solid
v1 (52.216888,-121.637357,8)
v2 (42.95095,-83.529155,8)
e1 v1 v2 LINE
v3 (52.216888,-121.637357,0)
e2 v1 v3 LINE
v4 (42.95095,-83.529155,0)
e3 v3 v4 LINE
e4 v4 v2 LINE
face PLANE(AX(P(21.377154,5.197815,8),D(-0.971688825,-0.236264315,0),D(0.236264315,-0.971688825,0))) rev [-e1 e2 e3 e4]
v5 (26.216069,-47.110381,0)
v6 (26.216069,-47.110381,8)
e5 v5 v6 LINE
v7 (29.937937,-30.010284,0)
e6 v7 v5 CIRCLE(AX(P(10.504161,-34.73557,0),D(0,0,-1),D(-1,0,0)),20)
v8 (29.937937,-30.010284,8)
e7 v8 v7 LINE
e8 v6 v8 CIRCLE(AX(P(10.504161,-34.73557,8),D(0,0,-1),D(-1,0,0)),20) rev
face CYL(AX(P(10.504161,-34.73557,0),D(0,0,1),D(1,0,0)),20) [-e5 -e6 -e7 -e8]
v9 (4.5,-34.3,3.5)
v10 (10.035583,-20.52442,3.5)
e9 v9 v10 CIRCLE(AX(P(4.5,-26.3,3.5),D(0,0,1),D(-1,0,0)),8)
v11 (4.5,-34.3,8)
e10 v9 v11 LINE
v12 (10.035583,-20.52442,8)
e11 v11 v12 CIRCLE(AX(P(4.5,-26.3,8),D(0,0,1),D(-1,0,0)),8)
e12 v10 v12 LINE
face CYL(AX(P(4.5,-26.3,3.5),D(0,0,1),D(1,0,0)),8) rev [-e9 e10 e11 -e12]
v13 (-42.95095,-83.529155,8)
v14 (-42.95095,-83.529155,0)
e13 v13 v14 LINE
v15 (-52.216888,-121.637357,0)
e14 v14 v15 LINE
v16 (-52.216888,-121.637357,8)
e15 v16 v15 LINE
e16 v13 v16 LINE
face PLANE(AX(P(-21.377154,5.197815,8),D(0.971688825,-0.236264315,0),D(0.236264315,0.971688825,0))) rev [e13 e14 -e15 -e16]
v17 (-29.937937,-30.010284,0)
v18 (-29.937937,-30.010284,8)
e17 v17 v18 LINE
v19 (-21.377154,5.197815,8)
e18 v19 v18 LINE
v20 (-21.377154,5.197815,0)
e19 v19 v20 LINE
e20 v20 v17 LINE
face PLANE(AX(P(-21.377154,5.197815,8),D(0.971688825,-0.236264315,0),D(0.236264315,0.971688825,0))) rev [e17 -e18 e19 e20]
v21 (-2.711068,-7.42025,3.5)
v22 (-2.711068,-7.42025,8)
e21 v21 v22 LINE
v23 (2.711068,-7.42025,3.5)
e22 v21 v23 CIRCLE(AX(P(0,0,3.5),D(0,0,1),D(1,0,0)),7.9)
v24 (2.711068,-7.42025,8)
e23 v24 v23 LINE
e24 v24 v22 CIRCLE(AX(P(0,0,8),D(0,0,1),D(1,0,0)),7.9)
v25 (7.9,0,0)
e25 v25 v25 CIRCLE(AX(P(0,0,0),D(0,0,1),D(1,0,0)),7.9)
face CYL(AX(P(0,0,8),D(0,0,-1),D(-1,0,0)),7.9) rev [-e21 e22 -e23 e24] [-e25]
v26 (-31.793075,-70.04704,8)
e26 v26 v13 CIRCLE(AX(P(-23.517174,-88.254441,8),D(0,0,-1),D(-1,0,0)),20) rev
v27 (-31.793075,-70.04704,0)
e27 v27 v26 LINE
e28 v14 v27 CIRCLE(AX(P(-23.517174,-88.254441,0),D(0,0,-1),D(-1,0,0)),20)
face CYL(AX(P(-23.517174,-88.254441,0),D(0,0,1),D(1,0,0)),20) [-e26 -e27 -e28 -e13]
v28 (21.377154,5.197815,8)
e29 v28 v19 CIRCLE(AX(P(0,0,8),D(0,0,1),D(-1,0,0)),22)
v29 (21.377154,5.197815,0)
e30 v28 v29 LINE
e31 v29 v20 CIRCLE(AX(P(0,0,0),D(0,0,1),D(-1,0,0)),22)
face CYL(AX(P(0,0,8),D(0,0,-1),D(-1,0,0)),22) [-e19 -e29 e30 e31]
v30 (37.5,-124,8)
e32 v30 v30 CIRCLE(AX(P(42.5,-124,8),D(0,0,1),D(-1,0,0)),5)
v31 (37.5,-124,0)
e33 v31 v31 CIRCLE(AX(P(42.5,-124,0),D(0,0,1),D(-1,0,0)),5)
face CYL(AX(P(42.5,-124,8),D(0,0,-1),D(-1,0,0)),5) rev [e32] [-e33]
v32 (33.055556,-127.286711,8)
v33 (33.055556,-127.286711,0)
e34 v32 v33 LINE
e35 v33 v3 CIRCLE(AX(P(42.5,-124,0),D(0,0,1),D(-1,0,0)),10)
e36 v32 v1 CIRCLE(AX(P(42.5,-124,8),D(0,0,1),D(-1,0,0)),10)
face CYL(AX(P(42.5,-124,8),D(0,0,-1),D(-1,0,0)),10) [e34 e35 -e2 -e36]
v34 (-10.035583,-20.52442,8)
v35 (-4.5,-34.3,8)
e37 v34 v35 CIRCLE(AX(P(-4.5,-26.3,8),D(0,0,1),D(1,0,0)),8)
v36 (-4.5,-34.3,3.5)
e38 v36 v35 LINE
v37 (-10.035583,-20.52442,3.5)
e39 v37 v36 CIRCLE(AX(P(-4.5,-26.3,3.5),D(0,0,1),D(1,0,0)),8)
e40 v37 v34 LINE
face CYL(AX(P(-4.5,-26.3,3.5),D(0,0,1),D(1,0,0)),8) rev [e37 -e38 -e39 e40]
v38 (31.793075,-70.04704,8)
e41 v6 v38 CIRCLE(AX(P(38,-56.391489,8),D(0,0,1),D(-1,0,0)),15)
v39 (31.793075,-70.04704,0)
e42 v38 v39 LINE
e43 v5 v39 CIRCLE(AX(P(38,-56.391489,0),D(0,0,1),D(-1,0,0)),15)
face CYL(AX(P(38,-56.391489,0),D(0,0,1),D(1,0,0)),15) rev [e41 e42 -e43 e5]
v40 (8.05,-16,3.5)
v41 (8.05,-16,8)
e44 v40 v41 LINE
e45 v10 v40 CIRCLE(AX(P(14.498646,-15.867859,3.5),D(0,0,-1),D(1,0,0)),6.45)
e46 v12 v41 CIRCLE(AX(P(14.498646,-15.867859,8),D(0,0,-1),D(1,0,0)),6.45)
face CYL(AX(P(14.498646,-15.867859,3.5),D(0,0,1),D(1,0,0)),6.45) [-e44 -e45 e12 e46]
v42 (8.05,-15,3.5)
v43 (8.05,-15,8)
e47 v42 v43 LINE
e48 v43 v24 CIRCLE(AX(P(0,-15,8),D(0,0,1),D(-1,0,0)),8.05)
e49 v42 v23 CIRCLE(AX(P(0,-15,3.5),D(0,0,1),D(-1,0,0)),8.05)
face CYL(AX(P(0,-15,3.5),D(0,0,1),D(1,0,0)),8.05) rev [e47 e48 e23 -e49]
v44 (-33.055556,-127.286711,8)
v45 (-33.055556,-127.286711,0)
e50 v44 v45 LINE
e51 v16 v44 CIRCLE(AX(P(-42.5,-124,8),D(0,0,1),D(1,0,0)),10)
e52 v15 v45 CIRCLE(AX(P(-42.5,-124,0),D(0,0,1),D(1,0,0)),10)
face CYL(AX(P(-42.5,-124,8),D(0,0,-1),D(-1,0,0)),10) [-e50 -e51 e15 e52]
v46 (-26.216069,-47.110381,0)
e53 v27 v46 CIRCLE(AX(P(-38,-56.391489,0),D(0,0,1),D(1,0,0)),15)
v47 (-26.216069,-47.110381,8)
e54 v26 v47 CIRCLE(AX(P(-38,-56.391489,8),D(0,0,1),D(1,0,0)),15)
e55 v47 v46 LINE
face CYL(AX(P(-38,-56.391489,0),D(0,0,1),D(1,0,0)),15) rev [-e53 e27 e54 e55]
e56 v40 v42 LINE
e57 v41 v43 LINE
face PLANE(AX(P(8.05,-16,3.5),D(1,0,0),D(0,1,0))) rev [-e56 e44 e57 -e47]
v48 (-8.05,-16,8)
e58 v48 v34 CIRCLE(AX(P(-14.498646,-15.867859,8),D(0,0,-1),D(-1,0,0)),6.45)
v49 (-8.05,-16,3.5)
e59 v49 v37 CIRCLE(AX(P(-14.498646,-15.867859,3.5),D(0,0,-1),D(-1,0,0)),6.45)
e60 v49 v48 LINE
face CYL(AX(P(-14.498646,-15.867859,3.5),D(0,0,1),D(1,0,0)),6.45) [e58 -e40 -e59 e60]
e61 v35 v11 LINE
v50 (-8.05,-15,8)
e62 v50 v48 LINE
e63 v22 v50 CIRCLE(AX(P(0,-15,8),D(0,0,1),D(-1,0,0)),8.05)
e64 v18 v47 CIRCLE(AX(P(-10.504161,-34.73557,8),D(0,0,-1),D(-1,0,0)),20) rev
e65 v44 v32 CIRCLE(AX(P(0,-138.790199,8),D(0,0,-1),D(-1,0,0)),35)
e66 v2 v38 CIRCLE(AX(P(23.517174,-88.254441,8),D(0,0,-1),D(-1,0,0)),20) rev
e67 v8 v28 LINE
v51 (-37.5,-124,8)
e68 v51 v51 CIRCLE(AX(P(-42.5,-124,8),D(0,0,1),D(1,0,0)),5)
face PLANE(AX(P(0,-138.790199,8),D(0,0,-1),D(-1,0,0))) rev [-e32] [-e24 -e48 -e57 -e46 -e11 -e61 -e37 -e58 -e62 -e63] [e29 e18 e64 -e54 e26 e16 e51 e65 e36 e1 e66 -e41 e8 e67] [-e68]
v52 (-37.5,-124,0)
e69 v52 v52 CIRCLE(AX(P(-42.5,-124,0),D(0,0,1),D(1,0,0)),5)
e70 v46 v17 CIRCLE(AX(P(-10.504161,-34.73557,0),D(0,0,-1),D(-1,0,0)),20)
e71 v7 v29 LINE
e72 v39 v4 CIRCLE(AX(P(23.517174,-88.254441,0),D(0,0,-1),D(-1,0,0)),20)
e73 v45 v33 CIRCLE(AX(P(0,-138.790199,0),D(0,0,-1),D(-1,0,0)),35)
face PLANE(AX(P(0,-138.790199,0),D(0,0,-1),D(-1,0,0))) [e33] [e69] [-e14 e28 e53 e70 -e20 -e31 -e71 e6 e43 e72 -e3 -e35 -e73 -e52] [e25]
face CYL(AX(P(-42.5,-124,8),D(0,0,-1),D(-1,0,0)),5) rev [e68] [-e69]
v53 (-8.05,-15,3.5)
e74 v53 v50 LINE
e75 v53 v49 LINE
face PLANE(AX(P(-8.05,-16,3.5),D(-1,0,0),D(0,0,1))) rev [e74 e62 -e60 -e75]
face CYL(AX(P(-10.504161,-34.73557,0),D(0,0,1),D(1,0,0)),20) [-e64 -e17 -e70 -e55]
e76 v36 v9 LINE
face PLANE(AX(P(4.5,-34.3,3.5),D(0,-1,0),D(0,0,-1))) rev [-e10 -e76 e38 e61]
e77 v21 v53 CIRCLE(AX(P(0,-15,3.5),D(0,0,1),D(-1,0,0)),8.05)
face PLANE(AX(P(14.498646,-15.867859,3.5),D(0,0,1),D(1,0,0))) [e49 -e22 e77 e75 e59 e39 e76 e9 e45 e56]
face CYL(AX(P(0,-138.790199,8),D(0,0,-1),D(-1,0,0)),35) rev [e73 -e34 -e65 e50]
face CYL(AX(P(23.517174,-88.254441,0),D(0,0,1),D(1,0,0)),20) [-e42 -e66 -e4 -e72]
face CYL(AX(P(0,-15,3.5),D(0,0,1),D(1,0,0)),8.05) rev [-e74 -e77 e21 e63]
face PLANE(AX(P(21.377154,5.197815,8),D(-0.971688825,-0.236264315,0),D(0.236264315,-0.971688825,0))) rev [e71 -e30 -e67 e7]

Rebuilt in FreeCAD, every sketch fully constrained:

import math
import FreeCAD as App
import Part
import Sketcher

V = App.Vector
Q = App.Units.Quantity


def edges_at(feature, points):
    """Names of the edges that pass closest to the given points."""
    edges = feature.Shape.Edges
    near = lambda p: min(range(len(edges)), key=lambda i: edges[i].distToShape(Part.Vertex(*p))[0])
    return sorted({f"Edge{near(p) + 1}" for p in points})

doc = App.newDocument("Part")
body = doc.addObject("PartDesign::Body", "Body")

sketch1 = body.newObject("Sketcher::SketchObject", "Sketch")
sketch1.AttachmentSupport = (doc.getObject("XY_Plane"), [""])
sketch1.MapMode = "FlatFace"
sketch1.addGeometry([
    Part.LineSegment(V(-21.377154, 5.197815, 0), V(-52.216888, -121.637357, 0)),
    Part.ArcOfCircle(Part.Circle(V(-42.5, -124, 0), V(0, 0, 1), 10), math.radians(166.333838), math.radians(340.811864)),
    Part.ArcOfCircle(Part.Circle(V(0, -138.790199, 0), V(0, 0, 1), 35), math.radians(19.188136), math.radians(160.811864)),
    Part.ArcOfCircle(Part.Circle(V(42.5, -124, 0), V(0, 0, 1), 10), math.radians(-160.811864), math.radians(13.666162)),
    Part.LineSegment(V(52.216888, -121.637357, 0), V(21.377154, 5.197815, 0)),
    Part.ArcOfCircle(Part.Circle(V(0, 0, 0), V(0, 0, 1), 22), math.radians(13.666162), math.radians(166.333838)),
    Part.Circle(V(-42.5, -124, 0), V(0, 0, 1), 5),
    Part.Circle(V(42.5, -124, 0), V(0, 0, 1), 5),
    Part.Circle(V(0, 0, 0), V(0, 0, 1), 7.9),
], False)
sketch1.addConstraint([
    Sketcher.Constraint("Tangent", 0, 2, 1, 1),
    Sketcher.Constraint("Tangent", 1, 2, 2, 2),
    Sketcher.Constraint("Tangent", 2, 1, 3, 1),
    Sketcher.Constraint("Tangent", 3, 2, 4, 1),
    Sketcher.Constraint("Tangent", 4, 2, 5, 1),
    Sketcher.Constraint("Tangent", 5, 2, 0, 1),
    Sketcher.Constraint("Coincident", 5, 3, -1, 1),
    Sketcher.Constraint("Coincident", 8, 3, -1, 1),
    Sketcher.Constraint("Coincident", 6, 3, 1, 3),
    Sketcher.Constraint("Coincident", 7, 3, 3, 3),
    Sketcher.Constraint("Equal", 1, 3),
    Sketcher.Constraint("Equal", 6, 7),
    Sketcher.Constraint("Symmetric", 1, 3, 3, 3, -2),
    Sketcher.Constraint("Diameter", 6, Q("10 mm")),
    Sketcher.Constraint("Radius", 1, Q("10 mm")),
    Sketcher.Constraint("Radius", 2, Q("35 mm")),
    Sketcher.Constraint("Radius", 5, Q("22 mm")),
    Sketcher.Constraint("Diameter", 8, Q("15.8 mm")),
    Sketcher.Constraint("DistanceY", 1, 3, -1, 1, Q("124 mm")),
    Sketcher.Constraint("DistanceX", 1, 3, 3, 3, Q("85 mm")),
])
pad1 = body.newObject("PartDesign::Pad", "Pad")
pad1.Profile = sketch1
pad1.Length = 8

sketch2 = body.newObject("Sketcher::SketchObject", "Sketch001")
sketch2.AttachmentSupport = (doc.getObject("XY_Plane"), [""])
sketch2.MapMode = "FlatFace"
sketch2.AttachmentOffset = App.Placement(V(0, 0, 8), App.Rotation())
sketch2.addGeometry([
    Part.LineSegment(V(-4.5, -34.3, 0), V(4.5, -34.3, 0)),
    Part.ArcOfCircle(Part.Circle(V(4.5, -26.3, 0), V(0, 0, 1), 8), math.radians(-90), math.radians(46.215504)),
    Part.ArcOfCircle(Part.Circle(V(14.498646, -15.867859, 0), V(0, 0, 1), 6.45), math.radians(-178.826098), math.radians(-133.784496)),
    Part.LineSegment(V(8.05, -16, 0), V(8.05, -15, 0)),
    Part.ArcOfCircle(Part.Circle(V(0, -15, 0), V(0, 0, 1), 8.05), math.radians(0), math.radians(180)),
    Part.LineSegment(V(-8.05, -15, 0), V(-8.05, -16, 0)),
    Part.ArcOfCircle(Part.Circle(V(-14.498646, -15.867859, 0), V(0, 0, 1), 6.45), math.radians(-46.215504), math.radians(-1.173902)),
    Part.ArcOfCircle(Part.Circle(V(-4.5, -26.3, 0), V(0, 0, 1), 8), math.radians(133.784496), math.radians(270)),
], False)
sketch2.addConstraint([
    Sketcher.Constraint("Tangent", 0, 2, 1, 1),
    Sketcher.Constraint("Tangent", 1, 2, 2, 2),
    Sketcher.Constraint("Coincident", 2, 1, 3, 1),
    Sketcher.Constraint("Tangent", 3, 2, 4, 1),
    Sketcher.Constraint("Tangent", 4, 2, 5, 1),
    Sketcher.Constraint("Coincident", 5, 2, 6, 2),
    Sketcher.Constraint("Tangent", 6, 1, 7, 1),
    Sketcher.Constraint("Tangent", 7, 2, 0, 1),
    Sketcher.Constraint("Horizontal", 0),
    Sketcher.Constraint("Vertical", 3),
    Sketcher.Constraint("Vertical", 5),
    Sketcher.Constraint("Equal", 2, 6),
    Sketcher.Constraint("Equal", 1, 7),
    Sketcher.Constraint("Symmetric", 2, 3, 6, 3, -2),
    Sketcher.Constraint("PointOnObject", 4, 3, -2),
    Sketcher.Constraint("Radius", 1, Q("8 mm")),
    Sketcher.Constraint("DistanceX", 0, 1, 0, 2, Q("9 mm")),
    Sketcher.Constraint("DistanceY", 3, 1, 3, 2, Q("1 mm")),
    Sketcher.Constraint("Radius", 2, Q("6.45 mm")),
    Sketcher.Constraint("Radius", 4, Q("8.05 mm")),
    Sketcher.Constraint("DistanceY", 4, 3, -1, 1, Q("15 mm")),
    Sketcher.Constraint("DistanceY", 1, 3, -1, 1, Q("26.3 mm")),
])
pocket1 = body.newObject("PartDesign::Pocket", "Pocket")
pocket1.Profile = sketch2
pocket1.Length = 4.5

sketch3 = body.newObject("Sketcher::SketchObject", "Sketch002")
sketch3.AttachmentSupport = (doc.getObject("XY_Plane"), [""])
sketch3.MapMode = "FlatFace"
sketch3.AttachmentOffset = App.Placement(V(0, 0, 8), App.Rotation())
sketch3.addGeometry([
    Part.Circle(V(-38, -56.391489, 0), V(0, 0, 1), 15),
    Part.Circle(V(38, -56.391489, 0), V(0, 0, 1), 15),
], False)
sketch3.addConstraint([
    Sketcher.Constraint("Equal", 0, 1),
    Sketcher.Constraint("Symmetric", 0, 3, 1, 3, -2),
    Sketcher.Constraint("Diameter", 0, Q("30 mm")),
    Sketcher.Constraint("DistanceX", 0, 3, -1, 1, Q("38 mm")),
    Sketcher.Constraint("DistanceY", 0, 3, -1, 1, Q("56.391489 mm")),
])
pocket2 = body.newObject("PartDesign::Pocket", "Pocket001")
pocket2.Profile = sketch3
pocket2.Type = "ThroughAll"
doc.recompute()

fillet = body.newObject("PartDesign::Fillet", "Fillet")
fillet.Base = (pocket2, edges_at(pocket2, [
    (-39.968, -71.262, 4),
    (-32.921, -42.278, 4),
    (32.921, -42.278, 4),
    (39.968, -71.262, 4),
]))
fillet.Radius = 20

doc.recompute()
